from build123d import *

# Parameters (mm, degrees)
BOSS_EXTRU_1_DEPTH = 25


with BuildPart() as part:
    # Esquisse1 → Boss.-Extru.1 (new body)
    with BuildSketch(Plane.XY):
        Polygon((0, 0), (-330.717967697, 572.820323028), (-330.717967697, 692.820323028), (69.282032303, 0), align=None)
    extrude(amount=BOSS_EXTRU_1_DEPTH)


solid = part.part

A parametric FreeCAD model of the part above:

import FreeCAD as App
import Part
import Sketcher
Q = App.Units.Quantity

doc = App.newDocument("Part")
params = doc.addObject("Spreadsheet::Sheet", "Params")
for row, (alias, value) in enumerate([
    ("sketch1_height", "120 mm"),
    ("sketch1_length", "800 mm"),
    ("pad1_length", "25 mm"),
], start=1):
    params.set(f"A{row}", alias)
    params.set(f"B{row}", "=" + value)
    params.setAlias(f"B{row}", alias)

body = doc.addObject("PartDesign::Body", "Body")

# Sketch on XY plane
sketch1 = body.newObject("Sketcher::SketchObject", "Sketch")
sketch1.AttachmentSupport = (doc.getObject("XY_Plane"), [""])
sketch1.MapMode = "FlatFace"
sketch1.addGeometry([
    Part.LineSegment(App.Vector(-331, 573, 0), App.Vector(0, 0, 0)),
    Part.LineSegment(App.Vector(0, 0, 0), App.Vector(69, 0, 0)),
    Part.LineSegment(App.Vector(69, 0, 0), App.Vector(-331, 693, 0)),
    Part.LineSegment(App.Vector(-331, 693, 0), App.Vector(-331, 573, 0)),
], False)
sketch1.addConstraint([
    Sketcher.Constraint("Coincident", 0, 2, 1, 1),
    Sketcher.Constraint("Coincident", 1, 2, 2, 1),
    Sketcher.Constraint("Coincident", 2, 2, 3, 1),
    Sketcher.Constraint("Coincident", 3, 2, 0, 1),
    Sketcher.Constraint("Horizontal", 1),
    Sketcher.Constraint("Vertical", 3),
    Sketcher.Constraint("Coincident", 0, 2, -1, 1),
    Sketcher.Constraint("Parallel", 0, 2),
    Sketcher.Constraint("DistanceY", 3, 2, 3, 1, Q("120 mm")),
    Sketcher.Constraint("Angle", 0, Q("-60 deg")),
    Sketcher.Constraint("Distance", 2, Q("800 mm")),
])
sketch1.setExpression("Constraints[8]", "Params.sketch1_height")
sketch1.setExpression("Constraints[10]", "Params.sketch1_length")
pad1 = body.newObject("PartDesign::Pad", "Pad")
pad1.Profile = sketch1
pad1.setExpression("Length", "Params.pad1_length")

doc.recompute()
